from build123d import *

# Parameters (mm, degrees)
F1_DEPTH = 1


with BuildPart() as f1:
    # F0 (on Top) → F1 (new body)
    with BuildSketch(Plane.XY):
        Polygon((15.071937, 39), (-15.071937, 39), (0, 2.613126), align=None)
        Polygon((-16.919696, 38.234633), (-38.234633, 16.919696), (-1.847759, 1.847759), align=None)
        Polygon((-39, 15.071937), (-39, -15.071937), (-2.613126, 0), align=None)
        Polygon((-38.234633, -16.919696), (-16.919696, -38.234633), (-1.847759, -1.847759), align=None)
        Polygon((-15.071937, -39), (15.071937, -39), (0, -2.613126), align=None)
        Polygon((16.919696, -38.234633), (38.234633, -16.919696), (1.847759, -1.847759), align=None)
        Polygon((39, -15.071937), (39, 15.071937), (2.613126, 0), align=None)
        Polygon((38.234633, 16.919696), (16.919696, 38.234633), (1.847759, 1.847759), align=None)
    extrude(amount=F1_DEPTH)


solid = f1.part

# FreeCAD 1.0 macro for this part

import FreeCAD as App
import Part
import Sketcher

V = App.Vector
Q = App.Units.Quantity

doc = App.newDocument("Part")
body = doc.addObject("PartDesign::Body", "Body")
body.AllowCompound = True

# Sketch on XY plane
sketch1 = doc.addObject("Sketcher::SketchObject", "Sketch")
body.addObject(sketch1)
sketch1.AttachmentSupport = (doc.XY_Plane, [""])
sketch1.MapMode = "FlatFace"
sketch1.addGeometry(Part.LineSegment(V(15.071937, 39, 0), V(-15.071937, 39, 0)), False)
sketch1.addGeometry(Part.LineSegment(V(-15.071937, 39, 0), V(0, 2.613126, 0)), False)
sketch1.addGeometry(Part.LineSegment(V(0, 2.613126, 0), V(15.071937, 39, 0)), False)
sketch1.addGeometry(Part.LineSegment(V(-16.919696, 38.234633, 0), V(-38.234633, 16.919696, 0)), False)
sketch1.addGeometry(Part.LineSegment(V(-38.234633, 16.919696, 0), V(-1.847759, 1.847759, 0)), False)
sketch1.addGeometry(Part.LineSegment(V(-1.847759, 1.847759, 0), V(-16.919696, 38.234633, 0)), False)
sketch1.addGeometry(Part.LineSegment(V(-39, 15.071937, 0), V(-39, -15.071937, 0)), False)
sketch1.addGeometry(Part.LineSegment(V(-39, -15.071937, 0), V(-2.613126, 0, 0)), False)
sketch1.addGeometry(Part.LineSegment(V(-2.613126, 0, 0), V(-39, 15.071937, 0)), False)
sketch1.addGeometry(Part.LineSegment(V(-38.234633, -16.919696, 0), V(-16.919696, -38.234633, 0)), False)
sketch1.addGeometry(Part.LineSegment(V(-16.919696, -38.234633, 0), V(-1.847759, -1.847759, 0)), False)
sketch1.addGeometry(Part.LineSegment(V(-1.847759, -1.847759, 0), V(-38.234633, -16.919696, 0)), False)
sketch1.addGeometry(Part.LineSegment(V(-15.071937, -39, 0), V(15.071937, -39, 0)), False)
sketch1.addGeometry(Part.LineSegment(V(15.071937, -39, 0), V(0, -2.613126, 0)), False)
sketch1.addGeometry(Part.LineSegment(V(0, -2.613126, 0), V(-15.071937, -39, 0)), False)
sketch1.addGeometry(Part.LineSegment(V(16.919696, -38.234633, 0), V(38.234633, -16.919696, 0)), False)
sketch1.addGeometry(Part.LineSegment(V(38.234633, -16.919696, 0), V(1.847759, -1.847759, 0)), False)
sketch1.addGeometry(Part.LineSegment(V(1.847759, -1.847759, 0), V(16.919696, -38.234633, 0)), False)
sketch1.addGeometry(Part.LineSegment(V(39, -15.071937, 0), V(39, 15.071937, 0)), False)
sketch1.addGeometry(Part.LineSegment(V(39, 15.071937, 0), V(2.613126, 0, 0)), False)
sketch1.addGeometry(Part.LineSegment(V(2.613126, 0, 0), V(39, -15.071937, 0)), False)
sketch1.addGeometry(Part.LineSegment(V(38.234633, 16.919696, 0), V(16.919696, 38.234633, 0)), False)
sketch1.addGeometry(Part.LineSegment(V(16.919696, 38.234633, 0), V(1.847759, 1.847759, 0)), False)
sketch1.addGeometry(Part.LineSegment(V(1.847759, 1.847759, 0), V(38.234633, 16.919696, 0)), False)
sketch1.addConstraint(Sketcher.Constraint("Coincident", 0, 2, 1, 1))
sketch1.addConstraint(Sketcher.Constraint("Coincident", 1, 2, 2, 1))
sketch1.addConstraint(Sketcher.Constraint("Coincident", 2, 2, 0, 1))
sketch1.addConstraint(Sketcher.Constraint("Coincident", 3, 2, 4, 1))
sketch1.addConstraint(Sketcher.Constraint("Coincident", 4, 2, 5, 1))
sketch1.addConstraint(Sketcher.Constraint("Coincident", 5, 2, 3, 1))
sketch1.addConstraint(Sketcher.Constraint("Coincident", 6, 2, 7, 1))
sketch1.addConstraint(Sketcher.Constraint("Coincident", 7, 2, 8, 1))
sketch1.addConstraint(Sketcher.Constraint("Coincident", 8, 2, 6, 1))
sketch1.addConstraint(Sketcher.Constraint("Coincident", 9, 2, 10, 1))
sketch1.addConstraint(Sketcher.Constraint("Coincident", 10, 2, 11, 1))
sketch1.addConstraint(Sketcher.Constraint("Coincident", 11, 2, 9, 1))
sketch1.addConstraint(Sketcher.Constraint("Coincident", 12, 2, 13, 1))
sketch1.addConstraint(Sketcher.Constraint("Coincident", 13, 2, 14, 1))
sketch1.addConstraint(Sketcher.Constraint("Coincident", 14, 2, 12, 1))
sketch1.addConstraint(Sketcher.Constraint("Coincident", 15, 2, 16, 1))
sketch1.addConstraint(Sketcher.Constraint("Coincident", 16, 2, 17, 1))
sketch1.addConstraint(Sketcher.Constraint("Coincident", 17, 2, 15, 1))
sketch1.addConstraint(Sketcher.Constraint("Coincident", 18, 2, 19, 1))
sketch1.addConstraint(Sketcher.Constraint("Coincident", 19, 2, 20, 1))
sketch1.addConstraint(Sketcher.Constraint("Coincident", 20, 2, 18, 1))
sketch1.addConstraint(Sketcher.Constraint("Coincident", 21, 2, 22, 1))
sketch1.addConstraint(Sketcher.Constraint("Coincident", 22, 2, 23, 1))
sketch1.addConstraint(Sketcher.Constraint("Coincident", 23, 2, 21, 1))
sketch1.addConstraint(Sketcher.Constraint("Horizontal", 0))
sketch1.addConstraint(Sketcher.Constraint("Vertical", 6))
sketch1.addConstraint(Sketcher.Constraint("Horizontal", 12))
sketch1.addConstraint(Sketcher.Constraint("Vertical", 18))
sketch1.addConstraint(Sketcher.Constraint("Symmetric", 0, 2, 12, 2, -1, 1))
sketch1.addConstraint(Sketcher.Constraint("Symmetric", 1, 2, 13, 2, -1, 1))
sketch1.addConstraint(Sketcher.Constraint("Symmetric", 3, 2, 15, 2, -1, 1))
sketch1.addConstraint(Sketcher.Constraint("Symmetric", 4, 2, 16, 2, -1, 1))
sketch1.addConstraint(Sketcher.Constraint("Symmetric", 5, 2, 17, 2, -1, 1))
sketch1.addConstraint(Sketcher.Constraint("Symmetric", 6, 2, 18, 2, -1, 1))
sketch1.addConstraint(Sketcher.Constraint("Symmetric", 7, 2, 19, 2, -1, 1))
sketch1.addConstraint(Sketcher.Constraint("Symmetric", 9, 2, 21, 2, -1, 1))
sketch1.addConstraint(Sketcher.Constraint("Symmetric", 10, 2, 22, 2, -1, 1))
sketch1.addConstraint(Sketcher.Constraint("Symmetric", 11, 2, 23, 2, -1, 1))
sketch1.addConstraint(Sketcher.Constraint("Symmetric", 11, 2, 15, 2, -2))
sketch1.addConstraint(Sketcher.Constraint("Symmetric", 10, 2, 16, 2, -2))
sketch1.addConstraint(Sketcher.Constraint("Symmetric", 9, 2, 17, 2, -2))
sketch1.addConstraint(Sketcher.Constraint("PointOnObject", 1, 2, -2))
sketch1.addConstraint(Sketcher.Constraint("PointOnObject", 7, 2, -1))
sketch1.addConstraint(Sketcher.Constraint("Perpendicular", 2, 4))
sketch1.addConstraint(Sketcher.Constraint("Parallel", 1, 5))
sketch1.addConstraint(Sketcher.Constraint("Perpendicular", 5, 7))
sketch1.addConstraint(Sketcher.Constraint("Parallel", 4, 8))
sketch1.addConstraint(Sketcher.Constraint("Perpendicular", 3, 9))
sketch1.addConstraint(Sketcher.Constraint("Perpendicular", 8, 10))
sketch1.addConstraint(Sketcher.Constraint("Parallel", 10, 14))
sketch1.addConstraint(Sketcher.Constraint("Parallel", 16, 20))
sketch1.addConstraint(Sketcher.Constraint("Equal", 12, 6))
sketch1.addConstraint(Sketcher.Constraint("Equal", 2, 4))
sketch1.addConstraint(Sketcher.Constraint("DistanceY", -1, 1, 0, 2, Q("39 mm")))
sketch1.addConstraint(Sketcher.Constraint("DistanceX", 6, 2, -1, 1, Q("39 mm")))
sketch1.addConstraint(Sketcher.Constraint("Angle", 1, Q("-67.5 deg")))
sketch1.addConstraint(Sketcher.Constraint("Distance", 1, Q("39.384869 mm")))
sketch1.addConstraint(Sketcher.Constraint("DistanceX", 4, 2, -1, 1, Q("1.847759 mm")))
sketch1.addConstraint(Sketcher.Constraint("DistanceY", -1, 1, 4, 2, Q("1.847759 mm")))
pad1 = doc.addObject("PartDesign::Pad", "Pad")
body.addObject(pad1)
pad1.Profile = sketch1
pad1.Length = 1

doc.recompute()
